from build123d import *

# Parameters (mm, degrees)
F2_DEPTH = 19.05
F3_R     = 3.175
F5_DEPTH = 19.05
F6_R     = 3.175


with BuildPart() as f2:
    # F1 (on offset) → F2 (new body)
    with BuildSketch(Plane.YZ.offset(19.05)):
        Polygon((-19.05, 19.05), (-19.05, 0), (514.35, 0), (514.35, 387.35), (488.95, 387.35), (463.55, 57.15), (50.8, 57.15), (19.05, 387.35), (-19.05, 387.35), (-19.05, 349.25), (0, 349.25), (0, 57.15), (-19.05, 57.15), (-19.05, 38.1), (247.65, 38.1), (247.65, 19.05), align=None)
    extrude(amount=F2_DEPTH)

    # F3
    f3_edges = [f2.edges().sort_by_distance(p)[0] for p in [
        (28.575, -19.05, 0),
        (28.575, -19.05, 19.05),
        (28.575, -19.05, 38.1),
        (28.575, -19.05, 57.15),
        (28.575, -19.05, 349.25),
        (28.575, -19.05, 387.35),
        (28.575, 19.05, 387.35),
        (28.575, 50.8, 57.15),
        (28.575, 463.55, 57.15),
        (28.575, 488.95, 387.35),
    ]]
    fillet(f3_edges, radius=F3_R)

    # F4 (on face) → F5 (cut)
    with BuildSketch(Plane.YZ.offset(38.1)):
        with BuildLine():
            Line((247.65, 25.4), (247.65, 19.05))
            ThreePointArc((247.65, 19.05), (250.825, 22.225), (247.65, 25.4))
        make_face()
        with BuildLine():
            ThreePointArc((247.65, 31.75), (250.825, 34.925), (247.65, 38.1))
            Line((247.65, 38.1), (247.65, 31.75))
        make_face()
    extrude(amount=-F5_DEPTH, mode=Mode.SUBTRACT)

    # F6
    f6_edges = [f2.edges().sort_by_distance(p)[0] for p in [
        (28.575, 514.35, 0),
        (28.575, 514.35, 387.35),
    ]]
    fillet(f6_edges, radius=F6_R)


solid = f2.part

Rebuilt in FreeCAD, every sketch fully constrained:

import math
import FreeCAD as App
import Part
import Sketcher

V = App.Vector
Q = App.Units.Quantity


def edges_at(feature, points):
    """Names of the edges that pass closest to the given points."""
    edges = feature.Shape.Edges
    near = lambda p: min(range(len(edges)), key=lambda i: edges[i].distToShape(Part.Vertex(*p))[0])
    return sorted({f"Edge{near(p) + 1}" for p in points})

doc = App.newDocument("Part")
body = doc.addObject("PartDesign::Body", "Body")

# Sketch on YZ plane
sketch1 = body.newObject("Sketcher::SketchObject", "Sketch")
sketch1.AttachmentSupport = (doc.getObject("YZ_Plane"), [""])
sketch1.MapMode = "FlatFace"
sketch1.AttachmentOffset = App.Placement(V(0, 0, 0.75 * 25.4), App.Rotation())
sketch1.addGeometry(Part.LineSegment(V(-19.05, 19.05, 0), V(-19.05, 0, 0)), False)
sketch1.addGeometry(Part.LineSegment(V(-19.05, 0, 0), V(514.35, 0, 0)), False)
sketch1.addGeometry(Part.LineSegment(V(514.35, 0, 0), V(514.35, 387.35, 0)), False)
sketch1.addGeometry(Part.LineSegment(V(514.35, 387.35, 0), V(488.95, 387.35, 0)), False)
sketch1.addGeometry(Part.LineSegment(V(488.95, 387.35, 0), V(463.55, 57.15, 0)), False)
sketch1.addGeometry(Part.LineSegment(V(463.55, 57.15, 0), V(50.8, 57.15, 0)), False)
sketch1.addGeometry(Part.LineSegment(V(50.8, 57.15, 0), V(19.05, 387.35, 0)), False)
sketch1.addGeometry(Part.LineSegment(V(19.05, 387.35, 0), V(-19.05, 387.35, 0)), False)
sketch1.addGeometry(Part.LineSegment(V(-19.05, 387.35, 0), V(-19.05, 349.25, 0)), False)
sketch1.addGeometry(Part.LineSegment(V(-19.05, 349.25, 0), V(0, 349.25, 0)), False)
sketch1.addGeometry(Part.LineSegment(V(0, 349.25, 0), V(0, 57.15, 0)), False)
sketch1.addGeometry(Part.LineSegment(V(0, 57.15, 0), V(-19.05, 57.15, 0)), False)
sketch1.addGeometry(Part.LineSegment(V(-19.05, 57.15, 0), V(-19.05, 38.1, 0)), False)
sketch1.addGeometry(Part.LineSegment(V(-19.05, 38.1, 0), V(247.65, 38.1, 0)), False)
sketch1.addGeometry(Part.LineSegment(V(247.65, 38.1, 0), V(247.65, 19.05, 0)), False)
sketch1.addGeometry(Part.LineSegment(V(247.65, 19.05, 0), V(-19.05, 19.05, 0)), False)
sketch1.addConstraint(Sketcher.Constraint("Coincident", 0, 2, 1, 1))
sketch1.addConstraint(Sketcher.Constraint("Coincident", 1, 2, 2, 1))
sketch1.addConstraint(Sketcher.Constraint("Coincident", 2, 2, 3, 1))
sketch1.addConstraint(Sketcher.Constraint("Coincident", 3, 2, 4, 1))
sketch1.addConstraint(Sketcher.Constraint("Coincident", 4, 2, 5, 1))
sketch1.addConstraint(Sketcher.Constraint("Coincident", 5, 2, 6, 1))
sketch1.addConstraint(Sketcher.Constraint("Coincident", 6, 2, 7, 1))
sketch1.addConstraint(Sketcher.Constraint("Coincident", 7, 2, 8, 1))
sketch1.addConstraint(Sketcher.Constraint("Coincident", 8, 2, 9, 1))
sketch1.addConstraint(Sketcher.Constraint("Coincident", 9, 2, 10, 1))
sketch1.addConstraint(Sketcher.Constraint("Coincident", 10, 2, 11, 1))
sketch1.addConstraint(Sketcher.Constraint("Coincident", 11, 2, 12, 1))
sketch1.addConstraint(Sketcher.Constraint("Coincident", 12, 2, 13, 1))
sketch1.addConstraint(Sketcher.Constraint("Coincident", 13, 2, 14, 1))
sketch1.addConstraint(Sketcher.Constraint("Coincident", 14, 2, 15, 1))
sketch1.addConstraint(Sketcher.Constraint("Coincident", 15, 2, 0, 1))
sketch1.addConstraint(Sketcher.Constraint("Vertical", 0))
sketch1.addConstraint(Sketcher.Constraint("Horizontal", 1))
sketch1.addConstraint(Sketcher.Constraint("Vertical", 2))
sketch1.addConstraint(Sketcher.Constraint("Horizontal", 3))
sketch1.addConstraint(Sketcher.Constraint("Horizontal", 5))
sketch1.addConstraint(Sketcher.Constraint("Horizontal", 7))
sketch1.addConstraint(Sketcher.Constraint("Vertical", 8))
sketch1.addConstraint(Sketcher.Constraint("Horizontal", 9))
sketch1.addConstraint(Sketcher.Constraint("Vertical", 10))
sketch1.addConstraint(Sketcher.Constraint("Horizontal", 11))
sketch1.addConstraint(Sketcher.Constraint("Vertical", 12))
sketch1.addConstraint(Sketcher.Constraint("Horizontal", 13))
sketch1.addConstraint(Sketcher.Constraint("Vertical", 14))
sketch1.addConstraint(Sketcher.Constraint("Horizontal", 15))
sketch1.addConstraint(Sketcher.Constraint("PointOnObject", 0, 2, -1))
sketch1.addConstraint(Sketcher.Constraint("PointOnObject", 9, 2, -2))
sketch1.addConstraint(Sketcher.Constraint("Horizontal", 3, 2, 6, 2))
sketch1.addConstraint(Sketcher.Constraint("Horizontal", 5, 2, 10, 2))
sketch1.addConstraint(Sketcher.Constraint("Vertical", 0, 2, 7, 2))
sketch1.addConstraint(Sketcher.Constraint("Vertical", 8, 2, 11, 2))
sketch1.addConstraint(Sketcher.Constraint("Equal", 11, 0))
sketch1.addConstraint(Sketcher.Constraint("Equal", 7, 8))
sketch1.addConstraint(Sketcher.Constraint("Equal", 0, 12))
sketch1.addConstraint(Sketcher.Constraint("Equal", 12, 14))
sketch1.addConstraint(Sketcher.Constraint("DistanceX", 1, 1, 1, 2, Q("21 in")))
sketch1.addConstraint(Sketcher.Constraint("DistanceX", 3, 2, 3, 1, Q("1 in")))
sketch1.addConstraint(Sketcher.Constraint("DistanceX", 7, 2, 7, 1, Q("1.5 in")))
sketch1.addConstraint(Sketcher.Constraint("DistanceX", 13, 1, 13, 2, Q("10.5 in")))
sketch1.addConstraint(Sketcher.Constraint("DistanceY", 10, 2, 10, 1, Q("11.5 in")))
sketch1.addConstraint(Sketcher.Constraint("DistanceX", -1, 1, 5, 2, Q("2 in")))
sketch1.addConstraint(Sketcher.Constraint("DistanceX", 4, 2, 1, 2, Q("2 in")))
sketch1.addConstraint(Sketcher.Constraint("DistanceX", 5, 2, 5, 1, Q("16.25 in")))
pad1 = body.newObject("PartDesign::Pad", "Pad")
pad1.Profile = sketch1
pad1.Length = Q("0.75 in")
doc.recompute()

fillet = body.newObject("PartDesign::Fillet", "Fillet")
fillet.Base = (pad1, edges_at(pad1, [
    (28.575, -19.05, 0),
    (28.575, -19.05, 19.05),
    (28.575, -19.05, 38.1),
    (28.575, -19.05, 57.15),
    (28.575, -19.05, 349.25),
    (28.575, -19.05, 387.35),
    (28.575, 19.05, 387.35),
    (28.575, 50.8, 57.15),
    (28.575, 463.55, 57.15),
    (28.575, 488.95, 387.35),
]))
fillet.Radius = Q("0.125 in")

# Sketch on YZ plane
sketch2 = body.newObject("Sketcher::SketchObject", "Sketch001")
sketch2.AttachmentSupport = (doc.getObject("YZ_Plane"), [""])
sketch2.MapMode = "FlatFace"
sketch2.AttachmentOffset = App.Placement(V(0, 0, 1.5 * 25.4), App.Rotation())
sketch2.addGeometry(Part.LineSegment(V(247.65, 25.4, 0), V(247.65, 19.05, 0)), False)
sketch2.addGeometry(Part.ArcOfCircle(Part.Circle(V(247.65, 22.225, 0), V(0, 0, 1), 3.175), math.radians(-90), math.radians(90)), False)
sketch2.addGeometry(Part.ArcOfCircle(Part.Circle(V(247.65, 34.925, 0), V(0, 0, 1), 3.175), math.radians(-90), math.radians(90)), False)
sketch2.addGeometry(Part.LineSegment(V(247.65, 38.1, 0), V(247.65, 31.75, 0)), False)
sketch2.addConstraint(Sketcher.Constraint("Coincident", 0, 1, 1, 2))
sketch2.addConstraint(Sketcher.Constraint("Coincident", 1, 1, 0, 2))
sketch2.addConstraint(Sketcher.Constraint("Coincident", 2, 1, 3, 2))
sketch2.addConstraint(Sketcher.Constraint("Coincident", 3, 1, 2, 2))
sketch2.addConstraint(Sketcher.Constraint("Vertical", 0))
sketch2.addConstraint(Sketcher.Constraint("Vertical", 3))
sketch2.addConstraint(Sketcher.Constraint("Equal", 1, 2))
sketch2.addConstraint(Sketcher.Constraint("Vertical", 1, 3, 2, 3))
sketch2.addConstraint(Sketcher.Constraint("Vertical", 2, 3, 0, 1))
sketch2.addConstraint(Sketcher.Constraint("Vertical", 1, 1, 2, 1))
sketch2.addConstraint(Sketcher.Constraint("DistanceY", -1, 1, 0, 1, Q("1 in")))
sketch2.addConstraint(Sketcher.Constraint("Radius", 1, Q("0.125 in")))
sketch2.addConstraint(Sketcher.Constraint("DistanceY", -1, 1, 3, 1, Q("1.5 in")))
sketch2.addConstraint(Sketcher.Constraint("DistanceX", -1, 1, 1, 3, Q("9.75 in")))
pocket1 = body.newObject("PartDesign::Pocket", "Pocket")
pocket1.Profile = sketch2
pocket1.Length = Q("0.75 in")
doc.recompute()

fillet2 = body.newObject("PartDesign::Fillet", "Fillet001")
fillet2.Base = (pocket1, edges_at(pocket1, [(28.575, 514.35, 0), (28.575, 514.35, 387.35)]))
fillet2.Radius = Q("0.125 in")

doc.recompute()
